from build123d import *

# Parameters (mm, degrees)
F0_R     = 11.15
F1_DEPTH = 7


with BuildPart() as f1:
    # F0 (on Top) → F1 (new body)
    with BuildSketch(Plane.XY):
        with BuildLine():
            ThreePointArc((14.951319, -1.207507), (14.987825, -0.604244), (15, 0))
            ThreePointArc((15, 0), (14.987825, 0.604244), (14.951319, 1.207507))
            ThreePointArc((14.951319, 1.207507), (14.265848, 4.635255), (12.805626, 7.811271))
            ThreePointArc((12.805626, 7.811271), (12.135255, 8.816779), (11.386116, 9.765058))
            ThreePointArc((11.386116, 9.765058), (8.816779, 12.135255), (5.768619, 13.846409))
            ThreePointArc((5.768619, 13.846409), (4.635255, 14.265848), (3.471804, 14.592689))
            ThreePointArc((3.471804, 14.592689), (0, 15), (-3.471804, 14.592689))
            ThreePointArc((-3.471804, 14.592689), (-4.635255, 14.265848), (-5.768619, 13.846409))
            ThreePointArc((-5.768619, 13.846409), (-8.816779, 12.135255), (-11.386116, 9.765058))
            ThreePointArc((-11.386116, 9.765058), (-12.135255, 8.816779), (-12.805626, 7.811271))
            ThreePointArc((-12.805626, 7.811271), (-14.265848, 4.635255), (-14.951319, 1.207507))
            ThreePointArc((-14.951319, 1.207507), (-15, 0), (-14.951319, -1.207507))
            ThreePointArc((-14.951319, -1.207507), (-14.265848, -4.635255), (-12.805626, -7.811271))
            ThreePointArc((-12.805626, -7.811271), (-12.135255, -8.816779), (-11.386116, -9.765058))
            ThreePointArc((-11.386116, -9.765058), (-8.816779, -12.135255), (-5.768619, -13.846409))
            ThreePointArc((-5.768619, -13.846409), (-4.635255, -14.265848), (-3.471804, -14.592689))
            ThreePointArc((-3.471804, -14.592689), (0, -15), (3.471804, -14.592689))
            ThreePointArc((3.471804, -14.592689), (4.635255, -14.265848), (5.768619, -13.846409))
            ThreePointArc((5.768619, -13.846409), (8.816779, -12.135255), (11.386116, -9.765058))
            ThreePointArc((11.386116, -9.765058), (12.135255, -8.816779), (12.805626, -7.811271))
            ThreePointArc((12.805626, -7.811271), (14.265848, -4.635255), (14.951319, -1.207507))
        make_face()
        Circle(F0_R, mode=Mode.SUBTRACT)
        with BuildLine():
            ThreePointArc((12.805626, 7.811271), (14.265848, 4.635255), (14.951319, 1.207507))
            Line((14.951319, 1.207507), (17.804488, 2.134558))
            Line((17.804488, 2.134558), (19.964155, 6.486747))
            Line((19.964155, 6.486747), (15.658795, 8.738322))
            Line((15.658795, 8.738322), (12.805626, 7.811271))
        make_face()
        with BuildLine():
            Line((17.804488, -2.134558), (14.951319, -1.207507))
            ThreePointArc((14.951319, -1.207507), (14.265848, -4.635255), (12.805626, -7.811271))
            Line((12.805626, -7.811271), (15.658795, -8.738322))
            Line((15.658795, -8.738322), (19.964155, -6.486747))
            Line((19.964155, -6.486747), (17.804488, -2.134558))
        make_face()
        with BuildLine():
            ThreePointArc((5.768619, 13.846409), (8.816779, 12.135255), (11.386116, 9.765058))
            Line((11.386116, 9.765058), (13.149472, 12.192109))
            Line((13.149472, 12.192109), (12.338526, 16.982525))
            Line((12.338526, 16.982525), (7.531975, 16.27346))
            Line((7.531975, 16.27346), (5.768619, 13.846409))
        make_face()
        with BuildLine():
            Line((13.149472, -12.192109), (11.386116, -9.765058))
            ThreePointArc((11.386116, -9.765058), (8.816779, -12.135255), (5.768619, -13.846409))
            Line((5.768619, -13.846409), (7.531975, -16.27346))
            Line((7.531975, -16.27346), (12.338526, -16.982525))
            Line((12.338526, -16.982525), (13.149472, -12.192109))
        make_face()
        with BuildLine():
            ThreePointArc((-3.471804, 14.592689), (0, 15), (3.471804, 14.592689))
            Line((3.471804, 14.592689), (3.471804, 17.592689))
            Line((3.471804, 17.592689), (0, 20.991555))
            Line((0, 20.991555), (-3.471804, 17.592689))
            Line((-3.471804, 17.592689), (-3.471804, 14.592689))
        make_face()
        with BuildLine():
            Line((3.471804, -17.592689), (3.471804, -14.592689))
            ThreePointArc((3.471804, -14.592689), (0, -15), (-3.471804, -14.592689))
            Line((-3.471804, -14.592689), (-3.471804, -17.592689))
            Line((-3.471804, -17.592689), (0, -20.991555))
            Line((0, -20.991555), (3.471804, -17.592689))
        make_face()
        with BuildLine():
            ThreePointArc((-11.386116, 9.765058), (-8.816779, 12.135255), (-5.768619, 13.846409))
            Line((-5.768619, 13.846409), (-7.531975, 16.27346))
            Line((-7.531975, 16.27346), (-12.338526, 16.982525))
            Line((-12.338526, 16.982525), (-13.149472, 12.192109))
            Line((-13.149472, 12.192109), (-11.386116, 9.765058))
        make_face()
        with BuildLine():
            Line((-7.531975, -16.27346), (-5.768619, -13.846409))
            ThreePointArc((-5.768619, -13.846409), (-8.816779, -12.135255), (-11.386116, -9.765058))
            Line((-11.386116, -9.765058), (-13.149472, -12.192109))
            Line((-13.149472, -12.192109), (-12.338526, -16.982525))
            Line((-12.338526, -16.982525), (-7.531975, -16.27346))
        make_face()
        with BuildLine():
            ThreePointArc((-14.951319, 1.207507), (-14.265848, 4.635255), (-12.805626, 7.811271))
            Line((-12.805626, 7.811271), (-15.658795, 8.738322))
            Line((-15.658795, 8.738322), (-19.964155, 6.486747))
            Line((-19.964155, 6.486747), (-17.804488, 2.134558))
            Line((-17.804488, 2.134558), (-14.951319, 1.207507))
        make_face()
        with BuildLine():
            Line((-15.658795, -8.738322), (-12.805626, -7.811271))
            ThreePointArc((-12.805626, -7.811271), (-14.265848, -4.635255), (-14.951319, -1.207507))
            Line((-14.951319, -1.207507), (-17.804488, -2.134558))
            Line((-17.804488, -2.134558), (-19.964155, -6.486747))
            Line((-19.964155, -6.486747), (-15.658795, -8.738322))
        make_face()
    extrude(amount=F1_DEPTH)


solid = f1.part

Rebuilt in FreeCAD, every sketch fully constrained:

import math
import FreeCAD as App
import Part
import Sketcher

V = App.Vector
Q = App.Units.Quantity

doc = App.newDocument("Part")
body = doc.addObject("PartDesign::Body", "Body")

sketch1 = body.newObject("Sketcher::SketchObject", "Sketch")
sketch1.AttachmentSupport = (doc.getObject("XY_Plane"), [""])
sketch1.MapMode = "FlatFace"
sketch1.addGeometry(Part.ArcOfCircle(Part.Circle(V(0.000104, -0.00001, 0), V(0, 0, 1), 14.999896), math.radians(-4.617329), math.radians(0.000037)), False)
sketch1.addGeometry(Part.ArcOfCircle(Part.Circle(V(0.000104, 0.00001, 0), V(0, 0, 1), 14.999896), math.radians(-0.000037), math.radians(4.617329)), False)
sketch1.addGeometry(Part.LineSegment(V(14.951319, 1.207507, 0), V(17.804488, 2.134558, 0)), False)
sketch1.addGeometry(Part.LineSegment(V(17.804488, 2.134558, 0), V(19.964155, 6.486747, 0)), False)
sketch1.addGeometry(Part.LineSegment(V(19.964155, 6.486747, 0), V(15.658795, 8.738322, 0)), False)
sketch1.addGeometry(Part.LineSegment(V(15.658795, 8.738322, 0), V(12.805626, 7.811271, 0)), False)
sketch1.addGeometry(Part.ArcOfCircle(Part.Circle(V(0.000021, 0.000011, 0), V(0, 0, 1), 14.999977), math.radians(31.382672), math.radians(40.617353)), False)
sketch1.addGeometry(Part.LineSegment(V(11.386116, 9.765058, 0), V(13.149472, 12.192109, 0)), False)
sketch1.addGeometry(Part.LineSegment(V(13.149472, 12.192109, 0), V(12.338526, 16.982525, 0)), False)
sketch1.addGeometry(Part.LineSegment(V(12.338526, 16.982525, 0), V(7.531975, 16.27346, 0)), False)
sketch1.addGeometry(Part.LineSegment(V(7.531975, 16.27346, 0), V(5.768619, 13.846409, 0)), False)
sketch1.addGeometry(Part.ArcOfCircle(Part.Circle(V(0.000024, 0.000065, 0), V(0, 0, 1), 14.999931), math.radians(67.382655), math.radians(76.617364)), False)
sketch1.addGeometry(Part.LineSegment(V(3.471804, 14.592689, 0), V(3.471804, 17.592689, 0)), False)
sketch1.addGeometry(Part.LineSegment(V(3.471804, 17.592689, 0), V(0, 20.991555, 0)), False)
sketch1.addGeometry(Part.LineSegment(V(0, 20.991555, 0), V(-3.471804, 17.592689, 0)), False)
sketch1.addGeometry(Part.LineSegment(V(-3.471804, 17.592689, 0), V(-3.471804, 14.592689, 0)), False)
sketch1.addGeometry(Part.ArcOfCircle(Part.Circle(V(-0.000024, 0.000065, 0), V(0, 0, 1), 14.999931), math.radians(103.382636), math.radians(112.617345)), False)
sketch1.addGeometry(Part.LineSegment(V(-5.768619, 13.846409, 0), V(-7.531975, 16.27346, 0)), False)
sketch1.addGeometry(Part.LineSegment(V(-7.531975, 16.27346, 0), V(-12.338526, 16.982525, 0)), False)
sketch1.addGeometry(Part.LineSegment(V(-12.338526, 16.982525, 0), V(-13.149472, 12.192109, 0)), False)
sketch1.addGeometry(Part.LineSegment(V(-13.149472, 12.192109, 0), V(-11.386116, 9.765058, 0)), False)
sketch1.addGeometry(Part.ArcOfCircle(Part.Circle(V(-0.000021, 0.000011, 0), V(0, 0, 1), 14.999977), math.radians(139.382647), math.radians(148.617328)), False)
sketch1.addGeometry(Part.LineSegment(V(-12.805626, 7.811271, 0), V(-15.658795, 8.738322, 0)), False)
sketch1.addGeometry(Part.LineSegment(V(-15.658795, 8.738322, 0), V(-19.964155, 6.486747, 0)), False)
sketch1.addGeometry(Part.LineSegment(V(-19.964155, 6.486747, 0), V(-17.804488, 2.134558, 0)), False)
sketch1.addGeometry(Part.LineSegment(V(-17.804488, 2.134558, 0), V(-14.951319, 1.207507, 0)), False)
sketch1.addGeometry(Part.ArcOfCircle(Part.Circle(V(0.000133, 0, 0), V(0, 0, 1), 15.000133), math.radians(175.382708), math.radians(184.617292)), False)
sketch1.addGeometry(Part.LineSegment(V(-14.951319, -1.207507, 0), V(-17.804488, -2.134558, 0)), False)
sketch1.addGeometry(Part.LineSegment(V(-17.804488, -2.134558, 0), V(-19.964155, -6.486747, 0)), False)
sketch1.addGeometry(Part.LineSegment(V(-19.964155, -6.486747, 0), V(-15.658795, -8.738322, 0)), False)
sketch1.addGeometry(Part.LineSegment(V(-15.658795, -8.738322, 0), V(-12.805626, -7.811271, 0)), False)
sketch1.addGeometry(Part.ArcOfCircle(Part.Circle(V(-0.000021, -0.000011, 0), V(0, 0, 1), 14.999977), math.radians(-148.617328), math.radians(-139.382647)), False)
sketch1.addGeometry(Part.LineSegment(V(-11.386116, -9.765058, 0), V(-13.149472, -12.192109, 0)), False)
sketch1.addGeometry(Part.LineSegment(V(-13.149472, -12.192109, 0), V(-12.338526, -16.982525, 0)), False)
sketch1.addGeometry(Part.LineSegment(V(-12.338526, -16.982525, 0), V(-7.531975, -16.27346, 0)), False)
sketch1.addGeometry(Part.LineSegment(V(-7.531975, -16.27346, 0), V(-5.768619, -13.846409, 0)), False)
sketch1.addGeometry(Part.ArcOfCircle(Part.Circle(V(-0.000024, -0.000065, 0), V(0, 0, 1), 14.999931), math.radians(-112.617345), math.radians(-103.382636)), False)
sketch1.addGeometry(Part.LineSegment(V(-3.471804, -14.592689, 0), V(-3.471804, -17.592689, 0)), False)
sketch1.addGeometry(Part.LineSegment(V(-3.471804, -17.592689, 0), V(0, -20.991555, 0)), False)
sketch1.addGeometry(Part.LineSegment(V(0, -20.991555, 0), V(3.471804, -17.592689, 0)), False)
sketch1.addGeometry(Part.LineSegment(V(3.471804, -17.592689, 0), V(3.471804, -14.592689, 0)), False)
sketch1.addGeometry(Part.ArcOfCircle(Part.Circle(V(0.000024, -0.000065, 0), V(0, 0, 1), 14.999931), math.radians(-76.617364), math.radians(-67.382655)), False)
sketch1.addGeometry(Part.LineSegment(V(5.768619, -13.846409, 0), V(7.531975, -16.27346, 0)), False)
sketch1.addGeometry(Part.LineSegment(V(7.531975, -16.27346, 0), V(12.338526, -16.982525, 0)), False)
sketch1.addGeometry(Part.LineSegment(V(12.338526, -16.982525, 0), V(13.149472, -12.192109, 0)), False)
sketch1.addGeometry(Part.LineSegment(V(13.149472, -12.192109, 0), V(11.386116, -9.765058, 0)), False)
sketch1.addGeometry(Part.ArcOfCircle(Part.Circle(V(0.000021, -0.000011, 0), V(0, 0, 1), 14.999977), math.radians(-40.617353), math.radians(-31.382672)), False)
sketch1.addGeometry(Part.LineSegment(V(12.805626, -7.811271, 0), V(15.658795, -8.738322, 0)), False)
sketch1.addGeometry(Part.LineSegment(V(15.658795, -8.738322, 0), V(19.964155, -6.486747, 0)), False)
sketch1.addGeometry(Part.LineSegment(V(19.964155, -6.486747, 0), V(17.804488, -2.134558, 0)), False)
sketch1.addGeometry(Part.LineSegment(V(17.804488, -2.134558, 0), V(14.951319, -1.207507, 0)), False)
sketch1.addGeometry(Part.Circle(V(0, 0, 0), V(0, 0, 1), 11.15), False)
sketch1.addConstraint(Sketcher.Constraint("Tangent", 0, 2, 1, 1))
sketch1.addConstraint(Sketcher.Constraint("Coincident", 1, 2, 2, 1))
sketch1.addConstraint(Sketcher.Constraint("Coincident", 2, 2, 3, 1))
sketch1.addConstraint(Sketcher.Constraint("Coincident", 3, 2, 4, 1))
sketch1.addConstraint(Sketcher.Constraint("Coincident", 4, 2, 5, 1))
sketch1.addConstraint(Sketcher.Constraint("Coincident", 5, 2, 6, 1))
sketch1.addConstraint(Sketcher.Constraint("Coincident", 6, 2, 7, 1))
sketch1.addConstraint(Sketcher.Constraint("Coincident", 7, 2, 8, 1))
sketch1.addConstraint(Sketcher.Constraint("Coincident", 8, 2, 9, 1))
sketch1.addConstraint(Sketcher.Constraint("Coincident", 9, 2, 10, 1))
sketch1.addConstraint(Sketcher.Constraint("Coincident", 10, 2, 11, 1))
sketch1.addConstraint(Sketcher.Constraint("Coincident", 11, 2, 12, 1))
sketch1.addConstraint(Sketcher.Constraint("Coincident", 12, 2, 13, 1))
sketch1.addConstraint(Sketcher.Constraint("Coincident", 13, 2, 14, 1))
sketch1.addConstraint(Sketcher.Constraint("Coincident", 14, 2, 15, 1))
sketch1.addConstraint(Sketcher.Constraint("Coincident", 15, 2, 16, 1))
sketch1.addConstraint(Sketcher.Constraint("Coincident", 16, 2, 17, 1))
sketch1.addConstraint(Sketcher.Constraint("Coincident", 17, 2, 18, 1))
sketch1.addConstraint(Sketcher.Constraint("Coincident", 18, 2, 19, 1))
sketch1.addConstraint(Sketcher.Constraint("Coincident", 19, 2, 20, 1))
sketch1.addConstraint(Sketcher.Constraint("Coincident", 20, 2, 21, 1))
sketch1.addConstraint(Sketcher.Constraint("Coincident", 21, 2, 22, 1))
sketch1.addConstraint(Sketcher.Constraint("Coincident", 22, 2, 23, 1))
sketch1.addConstraint(Sketcher.Constraint("Coincident", 23, 2, 24, 1))
sketch1.addConstraint(Sketcher.Constraint("Coincident", 24, 2, 25, 1))
sketch1.addConstraint(Sketcher.Constraint("Coincident", 25, 2, 26, 1))
sketch1.addConstraint(Sketcher.Constraint("Coincident", 26, 2, 27, 1))
sketch1.addConstraint(Sketcher.Constraint("Coincident", 27, 2, 28, 1))
sketch1.addConstraint(Sketcher.Constraint("Coincident", 28, 2, 29, 1))
sketch1.addConstraint(Sketcher.Constraint("Coincident", 29, 2, 30, 1))
sketch1.addConstraint(Sketcher.Constraint("Coincident", 30, 2, 31, 1))
sketch1.addConstraint(Sketcher.Constraint("Coincident", 31, 2, 32, 1))
sketch1.addConstraint(Sketcher.Constraint("Coincident", 32, 2, 33, 1))
sketch1.addConstraint(Sketcher.Constraint("Coincident", 33, 2, 34, 1))
sketch1.addConstraint(Sketcher.Constraint("Coincident", 34, 2, 35, 1))
sketch1.addConstraint(Sketcher.Constraint("Coincident", 35, 2, 36, 1))
sketch1.addConstraint(Sketcher.Constraint("Coincident", 36, 2, 37, 1))
sketch1.addConstraint(Sketcher.Constraint("Coincident", 37, 2, 38, 1))
sketch1.addConstraint(Sketcher.Constraint("Coincident", 38, 2, 39, 1))
sketch1.addConstraint(Sketcher.Constraint("Coincident", 39, 2, 40, 1))
sketch1.addConstraint(Sketcher.Constraint("Coincident", 40, 2, 41, 1))
sketch1.addConstraint(Sketcher.Constraint("Coincident", 41, 2, 42, 1))
sketch1.addConstraint(Sketcher.Constraint("Coincident", 42, 2, 43, 1))
sketch1.addConstraint(Sketcher.Constraint("Coincident", 43, 2, 44, 1))
sketch1.addConstraint(Sketcher.Constraint("Coincident", 44, 2, 45, 1))
sketch1.addConstraint(Sketcher.Constraint("Coincident", 45, 2, 46, 1))
sketch1.addConstraint(Sketcher.Constraint("Coincident", 46, 2, 47, 1))
sketch1.addConstraint(Sketcher.Constraint("Coincident", 47, 2, 48, 1))
sketch1.addConstraint(Sketcher.Constraint("Coincident", 48, 2, 49, 1))
sketch1.addConstraint(Sketcher.Constraint("Coincident", 49, 2, 50, 1))
sketch1.addConstraint(Sketcher.Constraint("Coincident", 50, 2, 0, 1))
sketch1.addConstraint(Sketcher.Constraint("Vertical", 12))
sketch1.addConstraint(Sketcher.Constraint("Vertical", 15))
sketch1.addConstraint(Sketcher.Constraint("Vertical", 37))
sketch1.addConstraint(Sketcher.Constraint("Vertical", 40))
sketch1.addConstraint(Sketcher.Constraint("Coincident", 51, 3, -1, 1))
sketch1.addConstraint(Sketcher.Constraint("Equal", 0, 1))
sketch1.addConstraint(Sketcher.Constraint("Equal", 11, 16))
sketch1.addConstraint(Sketcher.Constraint("Equal", 6, 21))
sketch1.addConstraint(Sketcher.Constraint("Equal", 21, 31))
sketch1.addConstraint(Sketcher.Constraint("Equal", 16, 36))
sketch1.addConstraint(Sketcher.Constraint("Equal", 36, 41))
sketch1.addConstraint(Sketcher.Constraint("Equal", 31, 46))
sketch1.addConstraint(Sketcher.Constraint("Symmetric", 6, 3, 31, 3, -1, 1))
sketch1.addConstraint(Sketcher.Constraint("Symmetric", 11, 3, 36, 3, -1, 1))
sketch1.addConstraint(Sketcher.Constraint("Symmetric", 16, 3, 41, 3, -1, 1))
sketch1.addConstraint(Sketcher.Constraint("Symmetric", 21, 3, 46, 3, -1, 1))
sketch1.addConstraint(Sketcher.Constraint("Symmetric", 1, 2, 26, 2, -1, 1))
sketch1.addConstraint(Sketcher.Constraint("Symmetric", 2, 2, 27, 2, -1, 1))
sketch1.addConstraint(Sketcher.Constraint("Symmetric", 3, 2, 28, 2, -1, 1))
sketch1.addConstraint(Sketcher.Constraint("Symmetric", 4, 2, 29, 2, -1, 1))
sketch1.addConstraint(Sketcher.Constraint("Symmetric", 7, 2, 32, 2, -1, 1))
sketch1.addConstraint(Sketcher.Constraint("Symmetric", 8, 2, 33, 2, -1, 1))
sketch1.addConstraint(Sketcher.Constraint("Symmetric", 9, 2, 34, 2, -1, 1))
sketch1.addConstraint(Sketcher.Constraint("Symmetric", 12, 2, 37, 2, -1, 1))
sketch1.addConstraint(Sketcher.Constraint("Symmetric", 13, 2, 38, 2, -1, 1))
sketch1.addConstraint(Sketcher.Constraint("Symmetric", 14, 2, 39, 2, -1, 1))
sketch1.addConstraint(Sketcher.Constraint("Symmetric", 17, 2, 42, 2, -1, 1))
sketch1.addConstraint(Sketcher.Constraint("Symmetric", 18, 2, 43, 2, -1, 1))
sketch1.addConstraint(Sketcher.Constraint("Symmetric", 19, 2, 44, 2, -1, 1))
sketch1.addConstraint(Sketcher.Constraint("Symmetric", 22, 2, 47, 2, -1, 1))
sketch1.addConstraint(Sketcher.Constraint("Symmetric", 23, 2, 48, 2, -1, 1))
sketch1.addConstraint(Sketcher.Constraint("Symmetric", 24, 2, 49, 2, -1, 1))
sketch1.addConstraint(Sketcher.Constraint("Symmetric", 25, 2, 50, 2, -1, 1))
sketch1.addConstraint(Sketcher.Constraint("Symmetric", 11, 3, 16, 3, -2))
sketch1.addConstraint(Sketcher.Constraint("Symmetric", 6, 3, 21, 3, -2))
sketch1.addConstraint(Sketcher.Constraint("Symmetric", 12, 2, 14, 2, -2))
sketch1.addConstraint(Sketcher.Constraint("Symmetric", 9, 2, 17, 2, -2))
sketch1.addConstraint(Sketcher.Constraint("Symmetric", 8, 2, 18, 2, -2))
sketch1.addConstraint(Sketcher.Constraint("Symmetric", 7, 2, 19, 2, -2))
sketch1.addConstraint(Sketcher.Constraint("Symmetric", 4, 2, 22, 2, -2))
sketch1.addConstraint(Sketcher.Constraint("Symmetric", 3, 2, 23, 2, -2))
sketch1.addConstraint(Sketcher.Constraint("Symmetric", 2, 2, 24, 2, -2))
sketch1.addConstraint(Sketcher.Constraint("Symmetric", 1, 2, 25, 2, -2))
sketch1.addConstraint(Sketcher.Constraint("PointOnObject", 0, 2, -1))
sketch1.addConstraint(Sketcher.Constraint("PointOnObject", 13, 2, -2))
sketch1.addConstraint(Sketcher.Constraint("Parallel", 2, 5))
sketch1.addConstraint(Sketcher.Constraint("Parallel", 7, 10))
sketch1.addConstraint(Sketcher.Constraint("Parallel", 17, 20))
sketch1.addConstraint(Sketcher.Constraint("Parallel", 22, 25))
sketch1.addConstraint(Sketcher.Constraint("Parallel", 27, 30))
sketch1.addConstraint(Sketcher.Constraint("Parallel", 10, 32))
sketch1.addConstraint(Sketcher.Constraint("Parallel", 32, 35))
sketch1.addConstraint(Sketcher.Constraint("Parallel", 20, 42))
sketch1.addConstraint(Sketcher.Constraint("Parallel", 42, 45))
sketch1.addConstraint(Sketcher.Constraint("Parallel", 25, 47))
sketch1.addConstraint(Sketcher.Constraint("Horizontal", 1, 3, 6, 3))
sketch1.addConstraint(Sketcher.Constraint("Horizontal", 10, 2, 16, 2))
sketch1.addConstraint(Sketcher.Constraint("Equal", 3, 4))
sketch1.addConstraint(Sketcher.Constraint("Equal", 2, 5))
sketch1.addConstraint(Sketcher.Constraint("Equal", 5, 7))
sketch1.addConstraint(Sketcher.Constraint("Equal", 4, 8))
sketch1.addConstraint(Sketcher.Constraint("Equal", 8, 9))
sketch1.addConstraint(Sketcher.Constraint("Equal", 7, 10))
sketch1.addConstraint(Sketcher.Constraint("Equal", 9, 13))
sketch1.addConstraint(Sketcher.Constraint("Diameter", 51, Q("22.3 mm")))
sketch1.addConstraint(Sketcher.Constraint("DistanceY", 12, 1, 12, 2, Q("3 mm")))
sketch1.addConstraint(Sketcher.Constraint("Angle", 2, Q("18.000004 deg")))
sketch1.addConstraint(Sketcher.Constraint("Angle", 7, Q("53.999996 deg")))
sketch1.addConstraint(Sketcher.Constraint("Distance", 2, Q("2.999999 mm")))
sketch1.addConstraint(Sketcher.Constraint("DistanceX", -1, 1, 0, 2, Q("15 mm")))
sketch1.addConstraint(Sketcher.Constraint("Radius", 11, Q("14.999931 mm")))
sketch1.addConstraint(Sketcher.Constraint("Radius", 0, Q("14.999896 mm")))
sketch1.addConstraint(Sketcher.Constraint("Radius", 6, Q("14.999977 mm")))
sketch1.addConstraint(Sketcher.Constraint("Radius", 26, Q("15.000133 mm")))
sketch1.addConstraint(Sketcher.Constraint("Distance", 3, Q("4.858571 mm")))
sketch1.addConstraint(Sketcher.Constraint("DistanceX", -1, 1, 1, 2, Q("14.951319 mm")))
sketch1.addConstraint(Sketcher.Constraint("DistanceY", -1, 1, 5, 2, Q("7.811271 mm")))
sketch1.addConstraint(Sketcher.Constraint("DistanceX", -1, 1, 7, 2, Q("13.149472 mm")))
sketch1.addConstraint(Sketcher.Constraint("DistanceY", -1, 1, 7, 2, Q("12.192109 mm")))
sketch1.addConstraint(Sketcher.Constraint("DistanceY", -1, 1, 9, 2, Q("16.27346 mm")))
sketch1.addConstraint(Sketcher.Constraint("DistanceX", -1, 1, 10, 2, Q("5.768619 mm")))
sketch1.addConstraint(Sketcher.Constraint("DistanceY", -1, 1, 11, 2, Q("14.592689 mm")))
sketch1.addConstraint(Sketcher.Constraint("DistanceX", -1, 1, 11, 2, Q("3.471804 mm")))
pad1 = body.newObject("PartDesign::Pad", "Pad")
pad1.Profile = sketch1
pad1.Length = 7

doc.recompute()
